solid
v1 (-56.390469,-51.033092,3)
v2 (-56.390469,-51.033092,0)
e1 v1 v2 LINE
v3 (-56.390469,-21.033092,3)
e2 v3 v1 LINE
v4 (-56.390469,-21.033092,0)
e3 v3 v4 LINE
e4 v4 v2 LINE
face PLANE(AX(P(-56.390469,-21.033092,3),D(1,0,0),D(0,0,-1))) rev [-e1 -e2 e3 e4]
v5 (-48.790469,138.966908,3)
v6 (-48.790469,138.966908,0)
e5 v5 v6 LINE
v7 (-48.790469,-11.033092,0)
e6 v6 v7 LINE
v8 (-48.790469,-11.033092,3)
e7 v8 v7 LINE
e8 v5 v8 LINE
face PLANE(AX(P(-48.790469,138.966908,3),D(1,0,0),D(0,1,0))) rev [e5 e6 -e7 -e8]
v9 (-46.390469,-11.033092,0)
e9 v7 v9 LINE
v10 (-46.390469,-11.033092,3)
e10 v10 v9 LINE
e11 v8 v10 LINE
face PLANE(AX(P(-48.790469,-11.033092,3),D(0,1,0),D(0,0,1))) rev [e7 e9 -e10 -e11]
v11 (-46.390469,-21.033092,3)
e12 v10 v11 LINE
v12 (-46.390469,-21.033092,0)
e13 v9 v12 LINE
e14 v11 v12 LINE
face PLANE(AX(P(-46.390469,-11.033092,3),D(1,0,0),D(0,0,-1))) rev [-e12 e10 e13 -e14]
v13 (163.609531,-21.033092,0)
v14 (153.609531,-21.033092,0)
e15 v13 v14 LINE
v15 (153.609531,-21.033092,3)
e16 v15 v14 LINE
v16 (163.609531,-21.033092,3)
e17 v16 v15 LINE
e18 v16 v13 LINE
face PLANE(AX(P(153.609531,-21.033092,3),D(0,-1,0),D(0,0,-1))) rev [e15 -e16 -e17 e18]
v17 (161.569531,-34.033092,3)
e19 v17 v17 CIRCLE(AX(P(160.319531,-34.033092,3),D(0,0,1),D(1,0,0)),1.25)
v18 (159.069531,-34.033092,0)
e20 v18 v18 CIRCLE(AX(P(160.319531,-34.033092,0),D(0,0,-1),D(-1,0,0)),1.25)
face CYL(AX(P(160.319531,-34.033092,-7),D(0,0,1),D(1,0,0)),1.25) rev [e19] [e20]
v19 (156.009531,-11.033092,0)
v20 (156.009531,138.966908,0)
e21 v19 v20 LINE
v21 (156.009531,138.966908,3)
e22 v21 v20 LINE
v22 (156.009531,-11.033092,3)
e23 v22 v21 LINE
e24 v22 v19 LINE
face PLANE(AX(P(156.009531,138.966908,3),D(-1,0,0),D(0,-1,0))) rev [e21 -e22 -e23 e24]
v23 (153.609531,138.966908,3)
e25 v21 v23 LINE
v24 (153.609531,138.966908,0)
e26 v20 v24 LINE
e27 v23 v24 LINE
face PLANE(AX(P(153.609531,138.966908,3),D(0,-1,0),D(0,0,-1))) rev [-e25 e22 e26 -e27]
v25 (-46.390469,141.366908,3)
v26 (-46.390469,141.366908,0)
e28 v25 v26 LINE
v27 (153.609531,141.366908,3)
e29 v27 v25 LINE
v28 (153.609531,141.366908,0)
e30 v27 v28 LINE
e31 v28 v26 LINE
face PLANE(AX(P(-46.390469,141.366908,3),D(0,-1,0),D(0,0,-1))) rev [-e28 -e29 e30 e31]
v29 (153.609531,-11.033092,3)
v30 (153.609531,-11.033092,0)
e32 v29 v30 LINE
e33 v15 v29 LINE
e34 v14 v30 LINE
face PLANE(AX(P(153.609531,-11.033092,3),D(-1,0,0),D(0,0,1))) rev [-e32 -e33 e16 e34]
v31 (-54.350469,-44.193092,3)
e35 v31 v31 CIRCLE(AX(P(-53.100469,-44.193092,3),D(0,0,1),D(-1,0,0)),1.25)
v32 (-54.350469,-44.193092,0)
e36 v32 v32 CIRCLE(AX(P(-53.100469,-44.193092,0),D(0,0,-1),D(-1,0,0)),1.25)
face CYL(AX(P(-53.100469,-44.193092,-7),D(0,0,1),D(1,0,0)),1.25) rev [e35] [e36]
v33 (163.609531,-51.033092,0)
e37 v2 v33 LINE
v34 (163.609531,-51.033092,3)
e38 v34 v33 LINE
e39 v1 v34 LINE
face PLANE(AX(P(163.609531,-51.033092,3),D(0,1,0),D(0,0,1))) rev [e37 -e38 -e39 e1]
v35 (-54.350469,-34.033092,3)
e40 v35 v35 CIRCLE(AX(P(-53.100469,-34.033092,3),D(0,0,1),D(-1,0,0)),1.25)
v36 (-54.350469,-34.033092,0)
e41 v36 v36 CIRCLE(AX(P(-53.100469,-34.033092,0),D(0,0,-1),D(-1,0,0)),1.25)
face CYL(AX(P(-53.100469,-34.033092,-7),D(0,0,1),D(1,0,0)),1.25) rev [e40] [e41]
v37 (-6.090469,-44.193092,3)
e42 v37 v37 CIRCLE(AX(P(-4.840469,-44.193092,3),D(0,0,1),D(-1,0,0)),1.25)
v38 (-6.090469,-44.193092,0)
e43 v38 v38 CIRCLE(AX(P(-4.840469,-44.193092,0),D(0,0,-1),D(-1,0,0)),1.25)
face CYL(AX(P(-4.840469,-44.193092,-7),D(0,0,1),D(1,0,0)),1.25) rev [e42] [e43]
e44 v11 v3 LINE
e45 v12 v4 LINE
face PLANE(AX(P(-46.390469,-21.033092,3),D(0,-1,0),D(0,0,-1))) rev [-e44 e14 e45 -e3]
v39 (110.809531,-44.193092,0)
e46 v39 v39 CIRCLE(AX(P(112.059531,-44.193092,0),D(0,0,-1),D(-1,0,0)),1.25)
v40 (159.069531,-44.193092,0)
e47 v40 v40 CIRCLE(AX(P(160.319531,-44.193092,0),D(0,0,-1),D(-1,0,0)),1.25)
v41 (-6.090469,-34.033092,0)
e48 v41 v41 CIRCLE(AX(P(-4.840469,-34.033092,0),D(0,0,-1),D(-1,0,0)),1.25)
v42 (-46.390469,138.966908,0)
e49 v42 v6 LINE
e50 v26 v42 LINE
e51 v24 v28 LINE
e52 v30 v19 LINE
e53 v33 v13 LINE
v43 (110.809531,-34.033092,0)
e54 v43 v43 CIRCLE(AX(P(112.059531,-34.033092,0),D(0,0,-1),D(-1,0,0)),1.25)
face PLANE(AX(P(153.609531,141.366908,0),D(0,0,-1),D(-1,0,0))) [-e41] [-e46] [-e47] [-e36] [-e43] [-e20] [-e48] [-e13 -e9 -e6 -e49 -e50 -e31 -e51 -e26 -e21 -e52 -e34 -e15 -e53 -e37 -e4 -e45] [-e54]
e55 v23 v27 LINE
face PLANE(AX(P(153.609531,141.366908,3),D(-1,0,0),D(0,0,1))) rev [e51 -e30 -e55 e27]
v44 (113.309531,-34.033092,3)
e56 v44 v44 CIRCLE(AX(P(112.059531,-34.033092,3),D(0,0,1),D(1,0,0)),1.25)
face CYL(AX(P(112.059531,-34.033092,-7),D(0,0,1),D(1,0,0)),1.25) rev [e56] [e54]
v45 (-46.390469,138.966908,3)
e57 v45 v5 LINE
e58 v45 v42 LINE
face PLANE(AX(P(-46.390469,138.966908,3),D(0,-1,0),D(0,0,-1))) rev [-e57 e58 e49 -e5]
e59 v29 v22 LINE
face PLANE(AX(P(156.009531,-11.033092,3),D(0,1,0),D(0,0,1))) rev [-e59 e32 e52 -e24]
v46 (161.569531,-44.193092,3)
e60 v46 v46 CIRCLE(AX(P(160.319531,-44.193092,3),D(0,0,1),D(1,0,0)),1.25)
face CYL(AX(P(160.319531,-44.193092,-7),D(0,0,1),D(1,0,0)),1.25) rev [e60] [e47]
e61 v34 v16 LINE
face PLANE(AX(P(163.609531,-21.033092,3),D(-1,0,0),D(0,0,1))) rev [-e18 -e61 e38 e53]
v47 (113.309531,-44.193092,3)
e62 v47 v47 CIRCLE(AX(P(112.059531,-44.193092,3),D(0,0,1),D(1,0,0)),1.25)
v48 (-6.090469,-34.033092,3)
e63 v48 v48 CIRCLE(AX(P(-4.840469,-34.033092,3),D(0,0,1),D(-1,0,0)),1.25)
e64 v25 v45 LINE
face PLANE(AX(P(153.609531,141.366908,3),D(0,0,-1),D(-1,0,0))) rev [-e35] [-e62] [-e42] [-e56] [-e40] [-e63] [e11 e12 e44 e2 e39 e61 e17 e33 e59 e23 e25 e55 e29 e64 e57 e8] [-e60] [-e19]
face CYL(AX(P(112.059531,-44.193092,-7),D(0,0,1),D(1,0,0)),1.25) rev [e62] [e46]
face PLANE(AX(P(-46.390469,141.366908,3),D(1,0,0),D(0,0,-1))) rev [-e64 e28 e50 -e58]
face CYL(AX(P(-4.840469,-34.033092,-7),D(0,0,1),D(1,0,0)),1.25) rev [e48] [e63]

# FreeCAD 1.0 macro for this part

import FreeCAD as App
import Part
import Sketcher

V = App.Vector
Q = App.Units.Quantity


def add_polygon(sketch, points):
    """Adds a closed chain of lines whose ends are joined by coincident constraints."""
    first, n = sketch.GeometryCount, len(points)
    for a, b in zip(points, points[1:] + points[:1]):
        sketch.addGeometry(Part.LineSegment(App.Vector(*a, 0), App.Vector(*b, 0)), False)
    for i in range(n):
        sketch.addConstraint(Sketcher.Constraint("Coincident", first + i, 2, first + (i + 1) % n, 1))

doc = App.newDocument("Part")
params = doc.addObject("Spreadsheet::Sheet", "Params")
for row, (alias, value) in enumerate([
    ("sketch1_width", "220 mm"),
    ("sketch1_width2", "10 mm"),
    ("sketch1_height", "30 mm"),
    ("sketch1_height2", "150 mm"),
    ("sketch1_width3", "2.4 mm"),
    ("pad1_length", "3 mm"),
    ("sketch2_diameter", "2.5 mm"),
    ("pocket1_length", "10 mm"),
], start=1):
    params.set(f"A{row}", alias)
    params.set(f"B{row}", "=" + value)
    params.setAlias(f"B{row}", alias)

body = doc.addObject("PartDesign::Body", "Body")

sketch1 = doc.addObject("Sketcher::SketchObject", "Sketch")
body.addObject(sketch1)
sketch1.AttachmentSupport = (doc.XY_Plane, [""])
sketch1.MapMode = "FlatFace"
add_polygon(sketch1, [(-56.4, -21), (-56.4, -51), (163.6, -51), (163.6, -21), (153.6, -21), (153.6, -11), (156, -11), (156, 139), (153.6, 139), (153.6, 141.4), (-46.4, 141.4), (-46.4, 139), (-48.8, 139), (-48.8, -11), (-46.4, -11), (-46.4, -21)])
sketch1.addConstraint(Sketcher.Constraint("Vertical", 0))
sketch1.addConstraint(Sketcher.Constraint("Horizontal", 1))
sketch1.addConstraint(Sketcher.Constraint("Vertical", 2))
sketch1.addConstraint(Sketcher.Constraint("Horizontal", 3))
sketch1.addConstraint(Sketcher.Constraint("Vertical", 4))
sketch1.addConstraint(Sketcher.Constraint("Horizontal", 5))
sketch1.addConstraint(Sketcher.Constraint("Vertical", 6))
sketch1.addConstraint(Sketcher.Constraint("Horizontal", 7))
sketch1.addConstraint(Sketcher.Constraint("Vertical", 8))
sketch1.addConstraint(Sketcher.Constraint("Horizontal", 9))
sketch1.addConstraint(Sketcher.Constraint("Vertical", 10))
sketch1.addConstraint(Sketcher.Constraint("Horizontal", 11))
sketch1.addConstraint(Sketcher.Constraint("Vertical", 12))
sketch1.addConstraint(Sketcher.Constraint("Horizontal", 13))
sketch1.addConstraint(Sketcher.Constraint("Vertical", 14))
sketch1.addConstraint(Sketcher.Constraint("Horizontal", 15))
sketch1.addConstraint(Sketcher.Constraint("Horizontal", 7, 2, 10, 2))
sketch1.addConstraint(Sketcher.Constraint("Horizontal", 5, 2, 12, 2))
sketch1.addConstraint(Sketcher.Constraint("Horizontal", 3, 2, 14, 2))
sketch1.addConstraint(Sketcher.Constraint("Vertical", 4, 2, 7, 2))
sketch1.addConstraint(Sketcher.Constraint("Vertical", 10, 2, 13, 2))
sketch1.addConstraint(Sketcher.Constraint("Equal", 7, 11))
sketch1.addConstraint(Sketcher.Constraint("Equal", 3, 15))
sketch1.addConstraint(Sketcher.Constraint("Equal", 15, 4))
sketch1.addConstraint(Sketcher.Constraint("Equal", 13, 8))
sketch1.addConstraint(Sketcher.Constraint("DistanceX", 1, 1, 1, 2, Q("220 mm")))
sketch1.addConstraint(Sketcher.Constraint("DistanceX", 3, 2, 3, 1, Q("10 mm")))
sketch1.addConstraint(Sketcher.Constraint("DistanceY", 0, 2, 0, 1, Q("30 mm")))
sketch1.addConstraint(Sketcher.Constraint("DistanceY", 6, 1, 6, 2, Q("150 mm")))
sketch1.addConstraint(Sketcher.Constraint("DistanceX", 5, 1, 5, 2, Q("2.4 mm")))
sketch1.addConstraint(Sketcher.Constraint("DistanceX", 0, 2, -1, 1, Q("56.390469 mm")))
sketch1.addConstraint(Sketcher.Constraint("DistanceY", 0, 2, -1, 1, Q("51.033092 mm")))
sketch1.setExpression("Constraints[41]", "Params.sketch1_width")
sketch1.setExpression("Constraints[42]", "Params.sketch1_width2")
sketch1.setExpression("Constraints[43]", "Params.sketch1_height")
sketch1.setExpression("Constraints[44]", "Params.sketch1_height2")
sketch1.setExpression("Constraints[45]", "Params.sketch1_width3")
pad1 = doc.addObject("PartDesign::Pad", "Pad")
body.addObject(pad1)
pad1.Profile = sketch1
pad1.setExpression("Length", "Params.pad1_length")

sketch2 = doc.addObject("Sketcher::SketchObject", "Sketch001")
body.addObject(sketch2)
sketch2.AttachmentSupport = (doc.XY_Plane, [""])
sketch2.MapMode = "FlatFace"
sketch2.AttachmentOffset = App.Placement(V(0, 0, 3), App.Rotation())
sketch2.addGeometry(Part.Circle(V(160.3, -34, 0), V(0, 0, 1), 1.2), False)
sketch2.addGeometry(Part.Circle(V(112.1, -34, 0), V(0, 0, 1), 1.2), False)
sketch2.addGeometry(Part.Circle(V(160.3, -44.2, 0), V(0, 0, 1), 1.2), False)
sketch2.addGeometry(Part.Circle(V(112.1, -44.2, 0), V(0, 0, 1), 1.2), False)
sketch2.addGeometry(Part.Circle(V(-4.8, -44.2, 0), V(0, 0, 1), 1.2), False)
sketch2.addGeometry(Part.Circle(V(-53.1, -44.2, 0), V(0, 0, 1), 1.2), False)
sketch2.addGeometry(Part.Circle(V(-4.8, -34, 0), V(0, 0, 1), 1.2), False)
sketch2.addGeometry(Part.Circle(V(-53.1, -34, 0), V(0, 0, 1), 1.2), False)
sketch2.addConstraint(Sketcher.Constraint("Equal", 0, 1))
sketch2.addConstraint(Sketcher.Constraint("Equal", 1, 2))
sketch2.addConstraint(Sketcher.Constraint("Equal", 2, 3))
sketch2.addConstraint(Sketcher.Constraint("Equal", 3, 4))
sketch2.addConstraint(Sketcher.Constraint("Equal", 4, 5))
sketch2.addConstraint(Sketcher.Constraint("Equal", 5, 6))
sketch2.addConstraint(Sketcher.Constraint("Equal", 6, 7))
sketch2.addConstraint(Sketcher.Constraint("Horizontal", 0, 3, 1, 3))
sketch2.addConstraint(Sketcher.Constraint("Horizontal", 2, 3, 3, 3))
sketch2.addConstraint(Sketcher.Constraint("Horizontal", 3, 3, 4, 3))
sketch2.addConstraint(Sketcher.Constraint("Horizontal", 4, 3, 5, 3))
sketch2.addConstraint(Sketcher.Constraint("Horizontal", 1, 3, 6, 3))
sketch2.addConstraint(Sketcher.Constraint("Horizontal", 6, 3, 7, 3))
sketch2.addConstraint(Sketcher.Constraint("Vertical", 0, 3, 2, 3))
sketch2.addConstraint(Sketcher.Constraint("Vertical", 1, 3, 3, 3))
sketch2.addConstraint(Sketcher.Constraint("Vertical", 4, 3, 6, 3))
sketch2.addConstraint(Sketcher.Constraint("Vertical", 5, 3, 7, 3))
sketch2.addConstraint(Sketcher.Constraint("Diameter", 0, Q("2.5 mm")))
sketch2.addConstraint(Sketcher.Constraint("DistanceX", 4, 3, 3, 3, Q("116.9 mm")))
sketch2.addConstraint(Sketcher.Constraint("DistanceX", 1, 3, 0, 3, Q("48.26 mm")))
sketch2.addConstraint(Sketcher.Constraint("DistanceY", 2, 3, 0, 3, Q("10.16 mm")))
sketch2.addConstraint(Sketcher.Constraint("DistanceX", 5, 3, 4, 3, Q("48.26 mm")))
sketch2.addConstraint(Sketcher.Constraint("DistanceX", -1, 1, 0, 3, Q("160.319531 mm")))
sketch2.addConstraint(Sketcher.Constraint("DistanceY", 0, 3, -1, 1, Q("34.033092 mm")))
sketch2.setExpression("Constraints[17]", "Params.sketch2_diameter")
pocket1 = doc.addObject("PartDesign::Pocket", "Pocket")
body.addObject(pocket1)
pocket1.Profile = sketch2
pocket1.setExpression("Length", "Params.pocket1_length")

doc.recompute()
